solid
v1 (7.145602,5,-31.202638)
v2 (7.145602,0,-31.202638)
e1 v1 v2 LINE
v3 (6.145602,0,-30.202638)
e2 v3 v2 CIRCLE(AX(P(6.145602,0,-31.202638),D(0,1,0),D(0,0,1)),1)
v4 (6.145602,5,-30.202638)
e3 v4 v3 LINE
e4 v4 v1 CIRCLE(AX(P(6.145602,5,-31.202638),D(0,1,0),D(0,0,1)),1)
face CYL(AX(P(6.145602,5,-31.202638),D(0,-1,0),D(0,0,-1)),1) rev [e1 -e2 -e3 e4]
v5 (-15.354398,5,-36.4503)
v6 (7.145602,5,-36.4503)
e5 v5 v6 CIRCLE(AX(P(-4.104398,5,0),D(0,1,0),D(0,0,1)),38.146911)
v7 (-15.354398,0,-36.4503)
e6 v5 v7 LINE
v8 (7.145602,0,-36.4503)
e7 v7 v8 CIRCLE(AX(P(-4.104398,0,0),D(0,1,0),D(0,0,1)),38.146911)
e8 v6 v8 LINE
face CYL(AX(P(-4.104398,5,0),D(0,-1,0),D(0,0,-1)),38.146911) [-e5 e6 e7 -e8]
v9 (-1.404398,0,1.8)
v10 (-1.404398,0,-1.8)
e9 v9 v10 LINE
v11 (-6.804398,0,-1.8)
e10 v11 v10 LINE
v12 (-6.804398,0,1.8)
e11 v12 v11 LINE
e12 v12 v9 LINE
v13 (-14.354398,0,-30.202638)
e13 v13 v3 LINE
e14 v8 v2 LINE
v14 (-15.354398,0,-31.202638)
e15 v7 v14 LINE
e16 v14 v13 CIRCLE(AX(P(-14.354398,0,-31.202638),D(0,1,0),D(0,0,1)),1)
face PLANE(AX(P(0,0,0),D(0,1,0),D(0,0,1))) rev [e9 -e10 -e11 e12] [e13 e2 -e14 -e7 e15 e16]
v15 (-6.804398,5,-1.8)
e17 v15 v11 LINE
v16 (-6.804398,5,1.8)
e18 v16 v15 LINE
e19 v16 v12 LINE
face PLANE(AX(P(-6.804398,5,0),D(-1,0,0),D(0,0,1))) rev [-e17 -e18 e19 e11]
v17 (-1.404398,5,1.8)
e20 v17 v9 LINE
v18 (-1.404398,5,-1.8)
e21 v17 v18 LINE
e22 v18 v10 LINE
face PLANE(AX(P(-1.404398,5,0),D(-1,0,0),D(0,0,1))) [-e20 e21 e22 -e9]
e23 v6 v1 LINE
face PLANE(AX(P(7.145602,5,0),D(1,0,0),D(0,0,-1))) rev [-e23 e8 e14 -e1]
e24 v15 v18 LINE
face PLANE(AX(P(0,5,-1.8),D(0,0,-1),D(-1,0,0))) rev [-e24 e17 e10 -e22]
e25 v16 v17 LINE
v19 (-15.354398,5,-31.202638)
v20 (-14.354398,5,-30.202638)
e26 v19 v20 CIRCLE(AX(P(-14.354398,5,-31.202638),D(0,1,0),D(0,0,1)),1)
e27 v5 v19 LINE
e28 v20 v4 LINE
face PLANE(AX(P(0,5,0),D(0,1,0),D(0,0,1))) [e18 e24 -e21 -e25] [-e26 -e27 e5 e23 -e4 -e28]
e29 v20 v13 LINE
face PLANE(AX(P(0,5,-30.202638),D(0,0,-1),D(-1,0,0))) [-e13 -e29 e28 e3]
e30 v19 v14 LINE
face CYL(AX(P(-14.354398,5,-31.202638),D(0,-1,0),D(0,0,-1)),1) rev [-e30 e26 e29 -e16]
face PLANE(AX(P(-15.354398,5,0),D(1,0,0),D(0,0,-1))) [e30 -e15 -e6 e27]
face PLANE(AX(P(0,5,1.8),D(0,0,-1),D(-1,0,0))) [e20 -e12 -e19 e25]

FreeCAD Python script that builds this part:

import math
import FreeCAD as App
import Part
import Sketcher
from FreeCAD import Vector
Q = App.Units.Quantity

doc = App.newDocument("Part")
body = doc.addObject("PartDesign::Body", "Body")

sketch1 = doc.addObject("Sketcher::SketchObject", "Sketch")
body.addObject(sketch1)
sketch1.AttachmentSupport = (doc.XZ_Plane, [""])
sketch1.MapMode = "FlatFace"
sketch1.addGeometry(Part.ArcOfCircle(Part.Circle(Vector(-4.104398, 0, 0), Vector(0, 0, 1), 38.146911), math.radians(-72.847711), math.radians(0)), False)
sketch1.addGeometry(Part.LineSegment(Vector(7.145602, -36.4503, 0), Vector(7.145602, -31.202638, 0)), False)
sketch1.addGeometry(Part.ArcOfCircle(Part.Circle(Vector(6.145602, -31.202638, 0), Vector(0, 0, 1), 1), math.radians(0), math.radians(90)), False)
sketch1.addGeometry(Part.LineSegment(Vector(6.145602, -30.202638, 0), Vector(-14.354398, -30.202638, 0)), False)
sketch1.addGeometry(Part.ArcOfCircle(Part.Circle(Vector(-14.354398, -31.202638, 0), Vector(0, 0, 1), 1), math.radians(90), math.radians(180)), False)
sketch1.addGeometry(Part.LineSegment(Vector(-15.354398, -31.202638, 0), Vector(-15.354398, -36.4503, 0)), False)
sketch1.addGeometry(Part.ArcOfCircle(Part.Circle(Vector(-4.104398, 0, 0), Vector(0, 0, 1), 38.146911), math.radians(0), math.radians(252.847711)), False)
sketch1.addGeometry(Part.LineSegment(Vector(-1.404398, 1.8, 0), Vector(-6.804398, 1.8, 0)), False)
sketch1.addGeometry(Part.LineSegment(Vector(-6.804398, 1.8, 0), Vector(-6.804398, -1.8, 0)), False)
sketch1.addGeometry(Part.LineSegment(Vector(-6.804398, -1.8, 0), Vector(-1.404398, -1.8, 0)), False)
sketch1.addGeometry(Part.LineSegment(Vector(-1.404398, -1.8, 0), Vector(-1.404398, 1.8, 0)), False)
sketch1.addConstraint(Sketcher.Constraint("Coincident", 0, 1, 1, 1))
sketch1.addConstraint(Sketcher.Constraint("Tangent", 1, 2, 2, 1))
sketch1.addConstraint(Sketcher.Constraint("Tangent", 2, 2, 3, 1))
sketch1.addConstraint(Sketcher.Constraint("Tangent", 3, 2, 4, 1))
sketch1.addConstraint(Sketcher.Constraint("Tangent", 4, 2, 5, 1))
sketch1.addConstraint(Sketcher.Constraint("Coincident", 5, 2, 6, 2))
sketch1.addConstraint(Sketcher.Constraint("Tangent", 6, 1, 0, 2))
sketch1.addConstraint(Sketcher.Constraint("Coincident", 7, 2, 8, 1))
sketch1.addConstraint(Sketcher.Constraint("Coincident", 8, 2, 9, 1))
sketch1.addConstraint(Sketcher.Constraint("Coincident", 9, 2, 10, 1))
sketch1.addConstraint(Sketcher.Constraint("Coincident", 10, 2, 7, 1))
sketch1.addConstraint(Sketcher.Constraint("Vertical", 1))
sketch1.addConstraint(Sketcher.Constraint("Horizontal", 3))
sketch1.addConstraint(Sketcher.Constraint("Vertical", 5))
sketch1.addConstraint(Sketcher.Constraint("Horizontal", 7))
sketch1.addConstraint(Sketcher.Constraint("Vertical", 8))
sketch1.addConstraint(Sketcher.Constraint("Horizontal", 9))
sketch1.addConstraint(Sketcher.Constraint("Vertical", 10))
sketch1.addConstraint(Sketcher.Constraint("Equal", 2, 4))
sketch1.addConstraint(Sketcher.Constraint("Equal", 0, 6))
sketch1.addConstraint(Sketcher.Constraint("PointOnObject", 0, 3, -1))
sketch1.addConstraint(Sketcher.Constraint("PointOnObject", 6, 1, -1))
sketch1.addConstraint(Sketcher.Constraint("Horizontal", 0, 1, 5, 2))
sketch1.addConstraint(Sketcher.Constraint("Radius", 2, Q("1 mm")))
sketch1.addConstraint(Sketcher.Constraint("DistanceX", 3, 2, 3, 1, Q("20.5 mm")))
sketch1.addConstraint(Sketcher.Constraint("DistanceX", 7, 2, 7, 1, Q("5.4 mm")))
sketch1.addConstraint(Sketcher.Constraint("DistanceY", 8, 2, 8, 1, Q("3.6 mm")))
sketch1.addConstraint(Sketcher.Constraint("DistanceY", -1, 1, 7, 2, Q("1.8 mm")))
sketch1.addConstraint(Sketcher.Constraint("DistanceX", 7, 2, 0, 3, Q("2.7 mm")))
sketch1.addConstraint(Sketcher.Constraint("Radius", 0, Q("38.146911 mm")))
sketch1.addConstraint(Sketcher.Constraint("DistanceY", 1, 1, 1, 2, Q("5.247661 mm")))
sketch1.addConstraint(Sketcher.Constraint("DistanceX", 0, 3, -1, 1, Q("4.104398 mm")))
pad1 = doc.addObject("PartDesign::Pad", "Pad")
body.addObject(pad1)
pad1.Profile = sketch1
pad1.Length = 5
pad1.Reversed = True

doc.recompute()
